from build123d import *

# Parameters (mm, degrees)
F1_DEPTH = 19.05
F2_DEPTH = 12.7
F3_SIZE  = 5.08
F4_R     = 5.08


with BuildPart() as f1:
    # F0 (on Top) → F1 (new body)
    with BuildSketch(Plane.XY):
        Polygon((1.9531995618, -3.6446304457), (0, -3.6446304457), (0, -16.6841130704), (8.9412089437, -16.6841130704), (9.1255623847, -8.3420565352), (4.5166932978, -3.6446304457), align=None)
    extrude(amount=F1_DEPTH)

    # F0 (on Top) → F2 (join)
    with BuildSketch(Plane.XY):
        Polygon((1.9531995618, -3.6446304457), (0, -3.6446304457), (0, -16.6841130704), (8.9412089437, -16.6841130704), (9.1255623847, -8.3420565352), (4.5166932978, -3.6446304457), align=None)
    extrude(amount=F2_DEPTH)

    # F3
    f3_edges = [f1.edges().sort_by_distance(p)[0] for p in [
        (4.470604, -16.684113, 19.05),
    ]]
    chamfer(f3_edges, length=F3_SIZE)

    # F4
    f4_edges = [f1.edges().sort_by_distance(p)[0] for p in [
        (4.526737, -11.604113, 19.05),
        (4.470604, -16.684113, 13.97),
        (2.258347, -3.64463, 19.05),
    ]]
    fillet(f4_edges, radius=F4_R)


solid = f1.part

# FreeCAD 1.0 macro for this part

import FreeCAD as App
import Part
import Sketcher
from FreeCAD import Vector
Q = App.Units.Quantity


def edges_at(feature, points):
    """Names of the edges that pass closest to the given points."""
    edges = feature.Shape.Edges
    near = lambda p: min(range(len(edges)), key=lambda i: edges[i].distToShape(Part.Vertex(*p))[0])
    return sorted({f"Edge{near(p) + 1}" for p in points})

doc = App.newDocument("Part")
body = doc.addObject("PartDesign::Body", "Body")

# Sketch on XY plane
sketch1 = body.newObject("Sketcher::SketchObject", "Sketch")
sketch1.AttachmentSupport = (doc.getObject("XY_Plane"), [""])
sketch1.MapMode = "FlatFace"
sketch1.addGeometry(Part.LineSegment(Vector(0, -3.64463, 0), Vector(0, -16.684113, 0)), False)
sketch1.addGeometry(Part.LineSegment(Vector(0, -16.684113, 0), Vector(8.941209, -16.684113, 0)), False)
sketch1.addGeometry(Part.LineSegment(Vector(8.941209, -16.684113, 0), Vector(9.125562, -8.342057, 0)), False)
sketch1.addGeometry(Part.LineSegment(Vector(9.125562, -8.342057, 0), Vector(4.516693, -3.64463, 0)), False)
sketch1.addGeometry(Part.LineSegment(Vector(4.516693, -3.64463, 0), Vector(0, -3.64463, 0)), False)
sketch1.addConstraint(Sketcher.Constraint("Coincident", 0, 2, 1, 1))
sketch1.addConstraint(Sketcher.Constraint("Coincident", 1, 2, 2, 1))
sketch1.addConstraint(Sketcher.Constraint("Coincident", 2, 2, 3, 1))
sketch1.addConstraint(Sketcher.Constraint("Coincident", 3, 2, 4, 1))
sketch1.addConstraint(Sketcher.Constraint("Coincident", 4, 2, 0, 1))
sketch1.addConstraint(Sketcher.Constraint("Vertical", 0))
sketch1.addConstraint(Sketcher.Constraint("Horizontal", 1))
sketch1.addConstraint(Sketcher.Constraint("Horizontal", 4))
sketch1.addConstraint(Sketcher.Constraint("PointOnObject", 0, 2, -2))
sketch1.addConstraint(Sketcher.Constraint("DistanceX", 1, 1, 1, 2, 8.941209))
sketch1.addConstraint(Sketcher.Constraint("DistanceX", 4, 2, 4, 1, 4.516693))
sketch1.addConstraint(Sketcher.Constraint("DistanceY", 0, 2, 0, 1, 13.039483))
sketch1.addConstraint(Sketcher.Constraint("DistanceY", 3, 2, -1, 1, 3.64463))
sketch1.addConstraint(Sketcher.Constraint("DistanceX", 3, 2, 2, 2, 4.608869))
sketch1.addConstraint(Sketcher.Constraint("Distance", 2, 8.344093))
pad1 = body.newObject("PartDesign::Pad", "Pad")
pad1.Profile = sketch1
pad1.Length = Q("0.75 in")

# Sketch on XY plane
sketch2 = body.newObject("Sketcher::SketchObject", "Sketch001")
sketch2.AttachmentSupport = (doc.getObject("XY_Plane"), [""])
sketch2.MapMode = "FlatFace"
sketch2.addGeometry(Part.LineSegment(Vector(0, -3.64463, 0), Vector(0, -16.684113, 0)), False)
sketch2.addGeometry(Part.LineSegment(Vector(0, -16.684113, 0), Vector(8.941209, -16.684113, 0)), False)
sketch2.addGeometry(Part.LineSegment(Vector(8.941209, -16.684113, 0), Vector(9.125562, -8.342057, 0)), False)
sketch2.addGeometry(Part.LineSegment(Vector(9.125562, -8.342057, 0), Vector(4.516693, -3.64463, 0)), False)
sketch2.addGeometry(Part.LineSegment(Vector(4.516693, -3.64463, 0), Vector(0, -3.64463, 0)), False)
sketch2.addConstraint(Sketcher.Constraint("Coincident", 0, 2, 1, 1))
sketch2.addConstraint(Sketcher.Constraint("Coincident", 1, 2, 2, 1))
sketch2.addConstraint(Sketcher.Constraint("Coincident", 2, 2, 3, 1))
sketch2.addConstraint(Sketcher.Constraint("Coincident", 3, 2, 4, 1))
sketch2.addConstraint(Sketcher.Constraint("Coincident", 4, 2, 0, 1))
sketch2.addConstraint(Sketcher.Constraint("Vertical", 0))
sketch2.addConstraint(Sketcher.Constraint("Horizontal", 1))
sketch2.addConstraint(Sketcher.Constraint("Horizontal", 4))
sketch2.addConstraint(Sketcher.Constraint("PointOnObject", 0, 2, -2))
sketch2.addConstraint(Sketcher.Constraint("DistanceX", 1, 1, 1, 2, 8.941209))
sketch2.addConstraint(Sketcher.Constraint("DistanceX", 4, 2, 4, 1, 4.516693))
sketch2.addConstraint(Sketcher.Constraint("DistanceY", 0, 2, 0, 1, 13.039483))
sketch2.addConstraint(Sketcher.Constraint("DistanceY", 3, 2, -1, 1, 3.64463))
sketch2.addConstraint(Sketcher.Constraint("DistanceX", 3, 2, 2, 2, 4.608869))
sketch2.addConstraint(Sketcher.Constraint("Distance", 2, 8.344093))
pad2 = body.newObject("PartDesign::Pad", "Pad001")
pad2.Profile = sketch2
pad2.Length = Q("0.5 in")
doc.recompute()

chamfer = body.newObject("PartDesign::Chamfer", "Chamfer")
chamfer.Base = (pad2, edges_at(pad2, [(4.471, -16.684, 19.05)]))
chamfer.Size = Q("0.2 in")
doc.recompute()

fillet = body.newObject("PartDesign::Fillet", "Fillet")
fillet.Base = (chamfer, edges_at(chamfer, [(4.527, -11.604, 19.05), (4.471, -16.684, 13.97), (2.258, -3.645, 19.05)]))
fillet.Radius = Q("0.2 in")

doc.recompute()
